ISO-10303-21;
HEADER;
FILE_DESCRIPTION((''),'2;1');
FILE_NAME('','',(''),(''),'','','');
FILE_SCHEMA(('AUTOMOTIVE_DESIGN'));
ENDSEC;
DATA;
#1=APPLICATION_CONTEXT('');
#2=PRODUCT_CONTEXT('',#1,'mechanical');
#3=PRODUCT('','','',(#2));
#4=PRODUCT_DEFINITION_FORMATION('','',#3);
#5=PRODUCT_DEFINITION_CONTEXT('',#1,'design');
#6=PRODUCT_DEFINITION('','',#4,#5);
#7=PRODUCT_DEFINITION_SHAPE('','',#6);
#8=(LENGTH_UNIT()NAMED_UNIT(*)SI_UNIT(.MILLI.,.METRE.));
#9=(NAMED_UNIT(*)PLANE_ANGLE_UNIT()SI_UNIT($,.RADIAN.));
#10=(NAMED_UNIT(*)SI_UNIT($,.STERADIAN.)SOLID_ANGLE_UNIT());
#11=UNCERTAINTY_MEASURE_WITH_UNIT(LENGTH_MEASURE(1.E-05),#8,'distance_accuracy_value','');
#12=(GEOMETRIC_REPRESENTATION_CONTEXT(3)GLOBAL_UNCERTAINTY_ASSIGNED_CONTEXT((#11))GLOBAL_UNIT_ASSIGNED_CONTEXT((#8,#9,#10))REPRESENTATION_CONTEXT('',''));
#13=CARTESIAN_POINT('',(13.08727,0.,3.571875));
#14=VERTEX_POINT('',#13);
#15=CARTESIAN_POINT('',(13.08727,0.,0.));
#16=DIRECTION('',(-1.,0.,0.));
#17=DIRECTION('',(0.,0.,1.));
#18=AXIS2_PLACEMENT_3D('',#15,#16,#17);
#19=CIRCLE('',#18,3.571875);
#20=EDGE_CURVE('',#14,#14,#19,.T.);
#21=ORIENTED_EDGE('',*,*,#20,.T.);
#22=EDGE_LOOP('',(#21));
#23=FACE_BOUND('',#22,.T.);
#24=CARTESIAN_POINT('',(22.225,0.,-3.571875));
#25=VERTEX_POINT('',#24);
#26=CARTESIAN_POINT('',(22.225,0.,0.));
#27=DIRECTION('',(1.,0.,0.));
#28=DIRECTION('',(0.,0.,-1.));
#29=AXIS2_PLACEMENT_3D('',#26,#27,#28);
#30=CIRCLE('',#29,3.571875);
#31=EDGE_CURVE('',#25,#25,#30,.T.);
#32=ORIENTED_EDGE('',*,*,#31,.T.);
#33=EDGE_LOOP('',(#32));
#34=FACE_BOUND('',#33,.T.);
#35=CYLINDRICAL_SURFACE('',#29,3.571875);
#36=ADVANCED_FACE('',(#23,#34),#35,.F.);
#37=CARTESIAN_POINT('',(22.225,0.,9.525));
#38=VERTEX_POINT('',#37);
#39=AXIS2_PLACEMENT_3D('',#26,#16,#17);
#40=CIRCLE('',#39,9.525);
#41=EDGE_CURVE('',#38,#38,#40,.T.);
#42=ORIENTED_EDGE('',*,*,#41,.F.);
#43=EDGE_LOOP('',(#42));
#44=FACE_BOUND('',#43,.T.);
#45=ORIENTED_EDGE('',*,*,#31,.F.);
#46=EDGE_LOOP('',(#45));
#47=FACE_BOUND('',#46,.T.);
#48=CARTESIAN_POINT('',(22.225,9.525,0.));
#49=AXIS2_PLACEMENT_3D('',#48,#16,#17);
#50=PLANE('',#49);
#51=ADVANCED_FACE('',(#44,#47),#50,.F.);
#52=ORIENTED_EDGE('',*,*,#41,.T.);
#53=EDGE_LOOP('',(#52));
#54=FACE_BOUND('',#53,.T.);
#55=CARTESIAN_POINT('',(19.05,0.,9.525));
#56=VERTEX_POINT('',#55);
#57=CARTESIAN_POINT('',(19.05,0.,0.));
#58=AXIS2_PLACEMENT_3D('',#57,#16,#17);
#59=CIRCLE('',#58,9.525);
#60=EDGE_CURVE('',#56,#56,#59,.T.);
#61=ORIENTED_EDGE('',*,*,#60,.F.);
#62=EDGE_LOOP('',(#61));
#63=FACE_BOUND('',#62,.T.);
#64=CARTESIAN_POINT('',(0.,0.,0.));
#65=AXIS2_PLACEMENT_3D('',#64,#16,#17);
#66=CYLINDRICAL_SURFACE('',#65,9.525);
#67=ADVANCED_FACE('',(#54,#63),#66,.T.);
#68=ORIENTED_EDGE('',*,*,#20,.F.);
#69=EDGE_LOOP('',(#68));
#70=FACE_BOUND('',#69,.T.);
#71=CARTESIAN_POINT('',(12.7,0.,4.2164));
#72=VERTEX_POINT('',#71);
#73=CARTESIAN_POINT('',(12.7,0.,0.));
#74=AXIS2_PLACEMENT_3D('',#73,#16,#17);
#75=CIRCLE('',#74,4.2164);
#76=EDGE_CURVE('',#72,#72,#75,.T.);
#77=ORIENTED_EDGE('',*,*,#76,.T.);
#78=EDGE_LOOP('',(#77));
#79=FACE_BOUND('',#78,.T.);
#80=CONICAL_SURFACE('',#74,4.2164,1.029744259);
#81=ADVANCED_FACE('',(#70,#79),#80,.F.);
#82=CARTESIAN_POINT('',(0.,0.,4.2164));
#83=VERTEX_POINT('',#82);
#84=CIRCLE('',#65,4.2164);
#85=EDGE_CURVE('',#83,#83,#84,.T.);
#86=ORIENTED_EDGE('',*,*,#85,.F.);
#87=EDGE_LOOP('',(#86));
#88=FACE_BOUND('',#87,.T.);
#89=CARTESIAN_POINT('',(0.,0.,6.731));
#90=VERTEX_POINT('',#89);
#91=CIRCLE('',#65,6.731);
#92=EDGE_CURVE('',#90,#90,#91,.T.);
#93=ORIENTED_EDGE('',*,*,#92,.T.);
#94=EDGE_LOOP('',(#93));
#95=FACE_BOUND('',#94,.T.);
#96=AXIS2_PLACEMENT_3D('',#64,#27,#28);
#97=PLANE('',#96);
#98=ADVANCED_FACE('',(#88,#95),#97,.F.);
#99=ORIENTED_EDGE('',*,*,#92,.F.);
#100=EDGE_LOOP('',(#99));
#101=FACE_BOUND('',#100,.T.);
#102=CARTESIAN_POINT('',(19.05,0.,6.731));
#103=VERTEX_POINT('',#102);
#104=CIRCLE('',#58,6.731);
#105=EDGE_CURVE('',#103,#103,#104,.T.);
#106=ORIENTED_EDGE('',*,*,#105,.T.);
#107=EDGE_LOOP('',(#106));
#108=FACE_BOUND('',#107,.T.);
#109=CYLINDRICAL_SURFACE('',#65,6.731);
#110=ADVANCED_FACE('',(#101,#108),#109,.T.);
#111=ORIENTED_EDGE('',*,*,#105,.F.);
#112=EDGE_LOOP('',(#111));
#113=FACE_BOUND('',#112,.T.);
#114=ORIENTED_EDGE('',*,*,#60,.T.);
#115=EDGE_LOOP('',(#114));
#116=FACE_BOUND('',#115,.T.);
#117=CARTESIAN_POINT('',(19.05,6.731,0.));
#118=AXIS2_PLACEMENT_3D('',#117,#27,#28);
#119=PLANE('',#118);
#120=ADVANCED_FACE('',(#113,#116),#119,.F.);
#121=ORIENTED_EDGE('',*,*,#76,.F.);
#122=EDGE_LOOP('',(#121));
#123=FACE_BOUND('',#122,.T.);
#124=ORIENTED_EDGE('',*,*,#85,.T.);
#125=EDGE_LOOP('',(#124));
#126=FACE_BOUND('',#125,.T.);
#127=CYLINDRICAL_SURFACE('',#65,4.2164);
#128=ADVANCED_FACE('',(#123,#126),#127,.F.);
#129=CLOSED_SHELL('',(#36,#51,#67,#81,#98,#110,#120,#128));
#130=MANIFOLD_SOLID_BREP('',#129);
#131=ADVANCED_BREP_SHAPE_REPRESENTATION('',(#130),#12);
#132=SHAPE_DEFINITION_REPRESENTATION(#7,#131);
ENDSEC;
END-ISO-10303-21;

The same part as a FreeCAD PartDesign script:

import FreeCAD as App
import Part
import Sketcher

V = App.Vector
Q = App.Units.Quantity

doc = App.newDocument("Part")
body = doc.addObject("PartDesign::Body", "Body")

# Sketch on XY plane
sketch1 = doc.addObject("Sketcher::SketchObject", "Sketch")
body.addObject(sketch1)
sketch1.AttachmentSupport = (doc.XY_Plane, [""])
sketch1.MapMode = "FlatFace"
sketch1.addGeometry([
    Part.LineSegment(V(0, 6.7, 0), V(0, 0, 0)),  # 0
    Part.LineSegment(V(0, 0, 0), V(22.2, 0, 0)),  # 1
    Part.LineSegment(V(22.2, 0, 0), V(22.2, 9.5, 0)),  # 2
    Part.LineSegment(V(22.2, 9.5, 0), V(19.1, 9.5, 0)),  # 3
    Part.LineSegment(V(19.1, 9.5, 0), V(19.1, 6.7, 0)),  # 4
    Part.LineSegment(V(19.1, 6.7, 0), V(0, 6.7, 0)),  # 5
], False)
sketch1.addConstraint([
    Sketcher.Constraint("Coincident", 0, 2, 1, 1),
    Sketcher.Constraint("Coincident", 1, 2, 2, 1),
    Sketcher.Constraint("Coincident", 2, 2, 3, 1),
    Sketcher.Constraint("Coincident", 3, 2, 4, 1),
    Sketcher.Constraint("Coincident", 4, 2, 5, 1),
    Sketcher.Constraint("Coincident", 5, 2, 0, 1),
    Sketcher.Constraint("Vertical", 0),
    Sketcher.Constraint("Horizontal", 1),
    Sketcher.Constraint("Vertical", 2),
    Sketcher.Constraint("Horizontal", 3),
    Sketcher.Constraint("Vertical", 4),
    Sketcher.Constraint("Horizontal", 5),
    Sketcher.Constraint("Coincident", 0, 2, -1, 1),
    Sketcher.Constraint("DistanceX", 5, 2, 5, 1, Q("0.75 in")),
    Sketcher.Constraint("DistanceY", 4, 2, 4, 1, Q("0.11 in")),
    Sketcher.Constraint("DistanceX", 1, 1, 1, 2, Q("0.875 in")),
    Sketcher.Constraint("DistanceY", 0, 2, 0, 1, Q("0.265 in")),
])
revolution = doc.addObject("PartDesign::Revolution", "Revolution")
body.addObject(revolution)
revolution.Profile = sketch1
revolution.ReferenceAxis = (sketch1, ["H_Axis"])
revolution.Angle = 360

# Sketch on YZ plane
sketch2 = doc.addObject("Sketcher::SketchObject", "Sketch001")
body.addObject(sketch2)
sketch2.AttachmentSupport = (doc.YZ_Plane, [""])
sketch2.MapMode = "FlatFace"
sketch2.AttachmentOffset = App.Placement(V(0, 0, 0.875 * 25.4), App.Rotation())
sketch2.addGeometry(Part.Circle(V(0, 0, 0), V(0, 0, 1), 3.6), False)
sketch2.addConstraint([
    Sketcher.Constraint("Coincident", 0, 3, -1, 1),
    Sketcher.Constraint("Diameter", 0, Q("0.28125 in")),
])
doc.recompute()
hole = doc.addObject("PartDesign::Hole", "Hole")
body.addObject(hole)
hole.Profile = sketch2
hole.ThreadType = "None"
hole.Diameter = Q("0.28125 in")
hole.DepthType = "ThroughAll"

# Sketch on YZ plane
sketch3 = doc.addObject("Sketcher::SketchObject", "Sketch002")
body.addObject(sketch3)
sketch3.AttachmentSupport = (doc.YZ_Plane, [""])
sketch3.MapMode = "FlatFace"
sketch3.addGeometry(Part.Circle(V(0, 0, 0), V(0, 0, 1), 4.2), False)
sketch3.addConstraint([
    Sketcher.Constraint("Coincident", 0, 3, -1, 1),
    Sketcher.Constraint("Diameter", 0, Q("0.332 in")),
])
doc.recompute()
hole2 = doc.addObject("PartDesign::Hole", "Hole001")
body.addObject(hole2)
hole2.Profile = sketch3
hole2.ThreadType = "None"
hole2.Diameter = Q("0.332 in")
hole2.DepthType = "Dimension"
hole2.Depth = Q("0.5 in")
hole2.DrillPoint = "Angled"
hole2.DrillPointAngle = 118
hole2.Reversed = True

doc.recompute()
